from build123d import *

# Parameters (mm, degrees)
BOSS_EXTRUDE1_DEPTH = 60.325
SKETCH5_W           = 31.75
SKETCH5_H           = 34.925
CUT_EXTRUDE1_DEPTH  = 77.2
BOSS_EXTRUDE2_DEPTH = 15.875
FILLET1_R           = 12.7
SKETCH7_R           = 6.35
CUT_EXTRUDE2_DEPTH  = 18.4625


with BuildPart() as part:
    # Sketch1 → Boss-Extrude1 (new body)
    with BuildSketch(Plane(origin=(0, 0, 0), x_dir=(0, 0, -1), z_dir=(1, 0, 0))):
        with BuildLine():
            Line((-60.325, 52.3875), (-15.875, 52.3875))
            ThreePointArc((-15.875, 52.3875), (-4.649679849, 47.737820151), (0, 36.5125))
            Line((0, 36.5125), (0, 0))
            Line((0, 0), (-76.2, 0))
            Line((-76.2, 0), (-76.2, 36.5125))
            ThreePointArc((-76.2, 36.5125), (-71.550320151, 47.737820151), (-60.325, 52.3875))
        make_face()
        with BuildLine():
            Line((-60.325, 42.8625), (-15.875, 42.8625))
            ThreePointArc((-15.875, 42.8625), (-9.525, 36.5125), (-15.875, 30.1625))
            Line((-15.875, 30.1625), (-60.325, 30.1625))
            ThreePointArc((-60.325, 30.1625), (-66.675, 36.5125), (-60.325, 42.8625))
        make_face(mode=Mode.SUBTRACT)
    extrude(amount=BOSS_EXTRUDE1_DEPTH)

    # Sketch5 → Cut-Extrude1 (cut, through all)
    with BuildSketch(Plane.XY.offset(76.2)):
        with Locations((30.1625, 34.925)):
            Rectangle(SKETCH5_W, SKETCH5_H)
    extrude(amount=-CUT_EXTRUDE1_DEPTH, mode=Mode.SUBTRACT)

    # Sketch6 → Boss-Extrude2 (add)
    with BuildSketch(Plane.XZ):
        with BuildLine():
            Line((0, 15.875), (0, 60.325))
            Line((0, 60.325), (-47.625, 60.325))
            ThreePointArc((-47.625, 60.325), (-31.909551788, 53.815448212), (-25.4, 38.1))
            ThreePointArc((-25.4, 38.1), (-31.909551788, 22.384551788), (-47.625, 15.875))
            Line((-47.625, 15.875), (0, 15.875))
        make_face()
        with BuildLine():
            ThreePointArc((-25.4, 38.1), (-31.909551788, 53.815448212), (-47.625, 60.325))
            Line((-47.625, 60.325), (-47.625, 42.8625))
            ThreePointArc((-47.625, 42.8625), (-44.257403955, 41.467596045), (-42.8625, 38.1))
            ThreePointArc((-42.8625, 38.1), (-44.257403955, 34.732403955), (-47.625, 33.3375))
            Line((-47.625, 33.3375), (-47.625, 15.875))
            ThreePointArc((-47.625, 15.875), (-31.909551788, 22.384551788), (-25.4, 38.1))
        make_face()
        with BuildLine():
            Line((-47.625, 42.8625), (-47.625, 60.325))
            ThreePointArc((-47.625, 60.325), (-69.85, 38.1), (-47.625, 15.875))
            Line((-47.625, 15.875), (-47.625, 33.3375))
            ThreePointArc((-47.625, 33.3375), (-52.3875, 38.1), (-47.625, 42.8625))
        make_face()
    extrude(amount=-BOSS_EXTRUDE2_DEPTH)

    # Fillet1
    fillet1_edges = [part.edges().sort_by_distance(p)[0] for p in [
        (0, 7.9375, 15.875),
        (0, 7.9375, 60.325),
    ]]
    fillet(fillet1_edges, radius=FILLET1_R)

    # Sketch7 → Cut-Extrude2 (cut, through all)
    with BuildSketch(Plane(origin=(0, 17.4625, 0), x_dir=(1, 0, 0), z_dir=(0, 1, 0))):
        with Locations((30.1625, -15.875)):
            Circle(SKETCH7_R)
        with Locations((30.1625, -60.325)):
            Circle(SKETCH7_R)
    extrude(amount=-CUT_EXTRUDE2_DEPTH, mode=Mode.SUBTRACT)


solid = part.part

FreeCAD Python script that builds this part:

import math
import FreeCAD as App
import Part
import Sketcher
Q = App.Units.Quantity


def edges_at(feature, points):
    """Names of the edges that pass closest to the given points."""
    edges = feature.Shape.Edges
    near = lambda p: min(range(len(edges)), key=lambda i: edges[i].distToShape(Part.Vertex(*p))[0])
    return sorted({f"Edge{near(p) + 1}" for p in points})


def add_polygon(sketch, points):
    """Adds a closed chain of lines whose ends are joined by coincident constraints."""
    first, n = sketch.GeometryCount, len(points)
    for a, b in zip(points, points[1:] + points[:1]):
        sketch.addGeometry(Part.LineSegment(App.Vector(*a, 0), App.Vector(*b, 0)), False)
    for i in range(n):
        sketch.addConstraint(Sketcher.Constraint("Coincident", first + i, 2, first + (i + 1) % n, 1))

doc = App.newDocument("Part")
body = doc.addObject("PartDesign::Body", "Body")

sketch1 = body.newObject("Sketcher::SketchObject", "Sketch")
sketch1.AttachmentSupport = (doc.getObject("YZ_Plane"), [""])
sketch1.MapMode = "FlatFace"
sketch1.addGeometry(Part.LineSegment(App.Vector(52, 16, 0), App.Vector(52, 60, 0)), False)
sketch1.addGeometry(Part.ArcOfCircle(Part.Circle(App.Vector(37, 60, 0), App.Vector(0, 0, 1), 16), math.radians(0), math.radians(90)), False)
sketch1.addGeometry(Part.LineSegment(App.Vector(37, 76, 0), App.Vector(0, 76, 0)), False)
sketch1.addGeometry(Part.LineSegment(App.Vector(0, 76, 0), App.Vector(0, 0, 0)), False)
sketch1.addGeometry(Part.LineSegment(App.Vector(0, 0, 0), App.Vector(37, 0, 0)), False)
sketch1.addGeometry(Part.ArcOfCircle(Part.Circle(App.Vector(37, 16, 0), App.Vector(0, 0, 1), 16), math.radians(-90), math.radians(0)), False)
sketch1.addGeometry(Part.LineSegment(App.Vector(43, 60, 0), App.Vector(43, 16, 0)), False)
sketch1.addGeometry(Part.ArcOfCircle(Part.Circle(App.Vector(37, 16, 0), App.Vector(0, 0, 1), 6), math.radians(180), math.radians(360)), False)
sketch1.addGeometry(Part.LineSegment(App.Vector(30, 16, 0), App.Vector(30, 60, 0)), False)
sketch1.addGeometry(Part.ArcOfCircle(Part.Circle(App.Vector(37, 60, 0), App.Vector(0, 0, 1), 6), math.radians(0), math.radians(180)), False)
sketch1.addConstraint(Sketcher.Constraint("Tangent", 0, 2, 1, 1))
sketch1.addConstraint(Sketcher.Constraint("Tangent", 1, 2, 2, 1))
sketch1.addConstraint(Sketcher.Constraint("Coincident", 2, 2, 3, 1))
sketch1.addConstraint(Sketcher.Constraint("Coincident", 3, 2, 4, 1))
sketch1.addConstraint(Sketcher.Constraint("Tangent", 4, 2, 5, 1))
sketch1.addConstraint(Sketcher.Constraint("Tangent", 5, 2, 0, 1))
sketch1.addConstraint(Sketcher.Constraint("Tangent", 6, 2, 7, 2))
sketch1.addConstraint(Sketcher.Constraint("Tangent", 7, 1, 8, 1))
sketch1.addConstraint(Sketcher.Constraint("Tangent", 8, 2, 9, 2))
sketch1.addConstraint(Sketcher.Constraint("Tangent", 9, 1, 6, 1))
sketch1.addConstraint(Sketcher.Constraint("Vertical", 0))
sketch1.addConstraint(Sketcher.Constraint("Horizontal", 2))
sketch1.addConstraint(Sketcher.Constraint("Vertical", 3))
sketch1.addConstraint(Sketcher.Constraint("Horizontal", 4))
sketch1.addConstraint(Sketcher.Constraint("Vertical", 6))
sketch1.addConstraint(Sketcher.Constraint("Vertical", 8))
sketch1.addConstraint(Sketcher.Constraint("Coincident", 3, 2, -1, 1))
sketch1.addConstraint(Sketcher.Constraint("Coincident", 7, 3, 5, 3))
sketch1.addConstraint(Sketcher.Constraint("Coincident", 9, 3, 1, 3))
sketch1.addConstraint(Sketcher.Constraint("DistanceY", 3, 2, 3, 1, Q("3 in")))
sketch1.addConstraint(Sketcher.Constraint("Radius", 7, Q("0.25 in")))
sketch1.addConstraint(Sketcher.Constraint("Radius", 1, Q("0.625 in")))
sketch1.addConstraint(Sketcher.Constraint("DistanceX", 2, 2, 2, 1, Q("1.4375 in")))
pad1 = body.newObject("PartDesign::Pad", "Pad")
pad1.Profile = sketch1
pad1.Length = Q("2.375 in")

sketch2 = body.newObject("Sketcher::SketchObject", "Sketch001")
sketch2.AttachmentSupport = (doc.getObject("XY_Plane"), [""])
sketch2.MapMode = "FlatFace"
sketch2.AttachmentOffset = App.Placement(App.Vector(0, 0, 3 * 25.4), App.Rotation())
add_polygon(sketch2, [(14, 52), (14, 17), (46, 17), (46, 52)])
sketch2.addConstraint(Sketcher.Constraint("Vertical", 0))
sketch2.addConstraint(Sketcher.Constraint("Horizontal", 1))
sketch2.addConstraint(Sketcher.Constraint("Vertical", 2))
sketch2.addConstraint(Sketcher.Constraint("Horizontal", 3))
sketch2.addConstraint(Sketcher.Constraint("DistanceX", 1, 1, 1, 2, Q("1.25 in")))
sketch2.addConstraint(Sketcher.Constraint("DistanceY", 0, 2, 0, 1, Q("1.375 in")))
sketch2.addConstraint(Sketcher.Constraint("DistanceX", -1, 1, 0, 2, Q("0.5625 in")))
sketch2.addConstraint(Sketcher.Constraint("DistanceY", -1, 1, 0, 2, Q("0.6875 in")))
pocket1 = body.newObject("PartDesign::Pocket", "Pocket")
pocket1.Profile = sketch2
pocket1.Type = "ThroughAll"

sketch3 = body.newObject("Sketcher::SketchObject", "Sketch002")
sketch3.AttachmentSupport = (doc.getObject("XZ_Plane"), [""])
sketch3.MapMode = "FlatFace"
sketch3.addGeometry(Part.LineSegment(App.Vector(0, 60.3, 0), App.Vector(-47.6, 60.3, 0)), False)
sketch3.addGeometry(Part.ArcOfCircle(Part.Circle(App.Vector(-47.6, 38.1, 0), App.Vector(0, 0, 1), 22.2), math.radians(90), math.radians(270)), False)
sketch3.addGeometry(Part.LineSegment(App.Vector(-47.6, 15.9, 0), App.Vector(0, 15.9, 0)), False)
sketch3.addGeometry(Part.LineSegment(App.Vector(0, 15.9, 0), App.Vector(0, 60.3, 0)), False)
sketch3.addGeometry(Part.ArcOfCircle(Part.Circle(App.Vector(-47.6, 38.1, 0), App.Vector(0, 0, 1), 4.8), math.radians(-90), math.radians(0)), False)
sketch3.addGeometry(Part.ArcOfCircle(Part.Circle(App.Vector(-47.6, 38.1, 0), App.Vector(0, 0, 1), 4.8), math.radians(90), math.radians(270)), False)
sketch3.addGeometry(Part.ArcOfCircle(Part.Circle(App.Vector(-47.6, 38.1, 0), App.Vector(0, 0, 1), 4.8), math.radians(0), math.radians(90)), False)
sketch3.addConstraint(Sketcher.Constraint("Tangent", 0, 2, 1, 1))
sketch3.addConstraint(Sketcher.Constraint("Tangent", 1, 2, 2, 1))
sketch3.addConstraint(Sketcher.Constraint("Coincident", 2, 2, 3, 1))
sketch3.addConstraint(Sketcher.Constraint("Coincident", 3, 2, 0, 1))
sketch3.addConstraint(Sketcher.Constraint("Tangent", 4, 1, 5, 2))
sketch3.addConstraint(Sketcher.Constraint("Tangent", 5, 1, 6, 2))
sketch3.addConstraint(Sketcher.Constraint("Tangent", 6, 1, 4, 2))
sketch3.addConstraint(Sketcher.Constraint("Horizontal", 0))
sketch3.addConstraint(Sketcher.Constraint("Horizontal", 2))
sketch3.addConstraint(Sketcher.Constraint("Vertical", 3))
sketch3.addConstraint(Sketcher.Constraint("Coincident", 4, 3, 1, 3))
sketch3.addConstraint(Sketcher.Constraint("PointOnObject", 2, 2, -2))
sketch3.addConstraint(Sketcher.Constraint("Horizontal", 5, 3, 6, 1))
sketch3.addConstraint(Sketcher.Constraint("Vertical", 1, 2, 4, 1))
sketch3.addConstraint(Sketcher.Constraint("Vertical", 4, 1, 5, 1))
sketch3.addConstraint(Sketcher.Constraint("Radius", 1, Q("0.875 in")))
sketch3.addConstraint(Sketcher.Constraint("Radius", 4, Q("0.1875 in")))
sketch3.addConstraint(Sketcher.Constraint("DistanceY", -1, 1, 1, 3, Q("1.5 in")))
sketch3.addConstraint(Sketcher.Constraint("DistanceX", 0, 2, 0, 1, Q("1.875 in")))
pad2 = body.newObject("PartDesign::Pad", "Pad001")
pad2.Profile = sketch3
pad2.Length = Q("0.625 in")
pad2.Reversed = True
doc.recompute()

fillet = body.newObject("PartDesign::Fillet", "Fillet")
fillet.Base = (pad2, edges_at(pad2, [(0, 7.938, 15.875), (0, 7.938, 60.325)]))
fillet.Radius = Q("0.5 in")

sketch4 = body.newObject("Sketcher::SketchObject", "Sketch003")
sketch4.AttachmentSupport = (doc.getObject("XZ_Plane"), [""])
sketch4.MapMode = "FlatFace"
sketch4.AttachmentOffset = App.Placement(App.Vector(0, 0, -0.6875 * 25.4), App.Rotation())
sketch4.addGeometry(Part.Circle(App.Vector(30, 16, 0), App.Vector(0, 0, 1), 6), False)
sketch4.addGeometry(Part.Circle(App.Vector(30, 60, 0), App.Vector(0, 0, 1), 6), False)
sketch4.addConstraint(Sketcher.Constraint("Equal", 0, 1))
sketch4.addConstraint(Sketcher.Constraint("Vertical", 0, 3, 1, 3))
sketch4.addConstraint(Sketcher.Constraint("Diameter", 0, Q("0.5 in")))
sketch4.addConstraint(Sketcher.Constraint("DistanceY", 0, 3, 1, 3, Q("1.75 in")))
sketch4.addConstraint(Sketcher.Constraint("DistanceX", -1, 1, 0, 3, Q("1.1875 in")))
sketch4.addConstraint(Sketcher.Constraint("DistanceY", -1, 1, 0, 3, Q("0.625 in")))
pocket2 = body.newObject("PartDesign::Pocket", "Pocket001")
pocket2.Profile = sketch4
pocket2.Type = "ThroughAll"
pocket2.Reversed = True

doc.recompute()
